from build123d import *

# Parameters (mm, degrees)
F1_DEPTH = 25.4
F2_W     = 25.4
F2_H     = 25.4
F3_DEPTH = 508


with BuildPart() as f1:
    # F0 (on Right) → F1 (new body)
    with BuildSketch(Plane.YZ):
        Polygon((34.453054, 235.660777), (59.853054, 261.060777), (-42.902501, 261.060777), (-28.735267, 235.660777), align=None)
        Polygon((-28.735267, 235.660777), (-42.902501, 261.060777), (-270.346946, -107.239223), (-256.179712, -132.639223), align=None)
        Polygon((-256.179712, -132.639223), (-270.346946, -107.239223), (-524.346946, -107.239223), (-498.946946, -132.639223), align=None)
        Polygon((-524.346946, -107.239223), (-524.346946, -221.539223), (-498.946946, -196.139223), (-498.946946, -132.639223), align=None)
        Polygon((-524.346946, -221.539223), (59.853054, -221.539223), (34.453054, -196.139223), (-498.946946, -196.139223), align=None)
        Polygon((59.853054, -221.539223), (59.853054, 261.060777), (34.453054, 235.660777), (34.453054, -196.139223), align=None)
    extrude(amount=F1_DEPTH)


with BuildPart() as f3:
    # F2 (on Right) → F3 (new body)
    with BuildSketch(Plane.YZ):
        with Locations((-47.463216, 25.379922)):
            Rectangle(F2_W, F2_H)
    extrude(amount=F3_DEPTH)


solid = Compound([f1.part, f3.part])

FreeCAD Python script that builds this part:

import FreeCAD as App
import Part
import Sketcher
Q = App.Units.Quantity


def add_polygon(sketch, points):
    """Adds a closed chain of lines whose ends are joined by coincident constraints."""
    first, n = sketch.GeometryCount, len(points)
    for a, b in zip(points, points[1:] + points[:1]):
        sketch.addGeometry(Part.LineSegment(App.Vector(*a, 0), App.Vector(*b, 0)), False)
    for i in range(n):
        sketch.addConstraint(Sketcher.Constraint("Coincident", first + i, 2, first + (i + 1) % n, 1))

doc = App.newDocument("Part")
body = doc.addObject("PartDesign::Body", "Body")

# Sketch on YZ plane
sketch1 = body.newObject("Sketcher::SketchObject", "Sketch")
sketch1.AttachmentSupport = (doc.getObject("YZ_Plane"), [""])
sketch1.MapMode = "FlatFace"
add_polygon(sketch1, [(59.853054, 261.060777), (-42.902501, 261.060777), (-270.346946, -107.239223), (-524.346946, -107.239223), (-524.346946, -221.539223), (59.853054, -221.539223)])  # lines 0-5
add_polygon(sketch1, [(34.453054, -196.139223), (-498.946946, -196.139223), (-498.946946, -132.639223), (-256.179712, -132.639223), (-28.735267, 235.660777), (34.453054, 235.660777)])  # lines 6-11
sketch1.addConstraint([
    Sketcher.Constraint("Horizontal", 0),
    Sketcher.Constraint("Horizontal", 2),
    Sketcher.Constraint("Vertical", 3),
    Sketcher.Constraint("Horizontal", 4),
    Sketcher.Constraint("Vertical", 5),
    Sketcher.Constraint("Horizontal", 6),
    Sketcher.Constraint("Vertical", 7),
    Sketcher.Constraint("Horizontal", 8),
    Sketcher.Constraint("Horizontal", 10),
    Sketcher.Constraint("Vertical", 11),
    Sketcher.Constraint("Parallel", 1, 9),
    Sketcher.Constraint("Equal", 1, 9),
    Sketcher.Constraint("DistanceX", 2, 2, 2, 1, Q("10 in")),
    Sketcher.Constraint("DistanceX", 4, 1, 4, 2, Q("23 in")),
    Sketcher.Constraint("DistanceX", 6, 2, 6, 1, Q("21 in")),
    Sketcher.Constraint("DistanceY", 5, 1, 5, 2, Q("19 in")),
    Sketcher.Constraint("DistanceY", 11, 2, 11, 1, Q("17 in")),
    Sketcher.Constraint("DistanceY", 3, 2, 3, 1, Q("4.5 in")),
    Sketcher.Constraint("DistanceX", 3, 2, 6, 2, Q("1 in")),
    Sketcher.Constraint("DistanceY", 3, 2, 6, 2, Q("1 in")),
    Sketcher.Constraint("Distance", 1, Q("17.0421 in")),
    Sketcher.Constraint("DistanceX", 10, 1, 10, 2, Q("63.188321 mm")),
    Sketcher.Constraint("DistanceX", 0, 2, -1, 1, Q("42.902501 mm")),
    Sketcher.Constraint("DistanceY", -1, 1, 0, 2, Q("261.060777 mm")),
])
pad1 = body.newObject("PartDesign::Pad", "Pad")
pad1.Profile = sketch1
pad1.Length = Q("1 in")
body2 = doc.addObject("PartDesign::Body", "Body001")

# Sketch on YZ plane
sketch2 = body2.newObject("Sketcher::SketchObject", "Sketch001")
sketch2.AttachmentSupport = (doc.getObject("YZ_Plane001"), [""])
sketch2.MapMode = "FlatFace"
add_polygon(sketch2, [(-60.163216, 38.079922), (-60.163216, 12.679922), (-34.763216, 12.679922), (-34.763216, 38.079922)])  # lines 0-3
sketch2.addConstraint([
    Sketcher.Constraint("Vertical", 0),
    Sketcher.Constraint("Horizontal", 1),
    Sketcher.Constraint("Vertical", 2),
    Sketcher.Constraint("Horizontal", 3),
    Sketcher.Constraint("Equal", 3, 0),
    Sketcher.Constraint("DistanceX", 1, 1, 1, 2, Q("1 in")),
    Sketcher.Constraint("DistanceX", 0, 2, -1, 1, Q("60.163216 mm")),
    Sketcher.Constraint("DistanceY", -1, 1, 0, 2, Q("12.679922 mm")),
])
pad2 = body2.newObject("PartDesign::Pad", "Pad001")
pad2.Profile = sketch2
pad2.Length = Q("20 in")

doc.recompute()
